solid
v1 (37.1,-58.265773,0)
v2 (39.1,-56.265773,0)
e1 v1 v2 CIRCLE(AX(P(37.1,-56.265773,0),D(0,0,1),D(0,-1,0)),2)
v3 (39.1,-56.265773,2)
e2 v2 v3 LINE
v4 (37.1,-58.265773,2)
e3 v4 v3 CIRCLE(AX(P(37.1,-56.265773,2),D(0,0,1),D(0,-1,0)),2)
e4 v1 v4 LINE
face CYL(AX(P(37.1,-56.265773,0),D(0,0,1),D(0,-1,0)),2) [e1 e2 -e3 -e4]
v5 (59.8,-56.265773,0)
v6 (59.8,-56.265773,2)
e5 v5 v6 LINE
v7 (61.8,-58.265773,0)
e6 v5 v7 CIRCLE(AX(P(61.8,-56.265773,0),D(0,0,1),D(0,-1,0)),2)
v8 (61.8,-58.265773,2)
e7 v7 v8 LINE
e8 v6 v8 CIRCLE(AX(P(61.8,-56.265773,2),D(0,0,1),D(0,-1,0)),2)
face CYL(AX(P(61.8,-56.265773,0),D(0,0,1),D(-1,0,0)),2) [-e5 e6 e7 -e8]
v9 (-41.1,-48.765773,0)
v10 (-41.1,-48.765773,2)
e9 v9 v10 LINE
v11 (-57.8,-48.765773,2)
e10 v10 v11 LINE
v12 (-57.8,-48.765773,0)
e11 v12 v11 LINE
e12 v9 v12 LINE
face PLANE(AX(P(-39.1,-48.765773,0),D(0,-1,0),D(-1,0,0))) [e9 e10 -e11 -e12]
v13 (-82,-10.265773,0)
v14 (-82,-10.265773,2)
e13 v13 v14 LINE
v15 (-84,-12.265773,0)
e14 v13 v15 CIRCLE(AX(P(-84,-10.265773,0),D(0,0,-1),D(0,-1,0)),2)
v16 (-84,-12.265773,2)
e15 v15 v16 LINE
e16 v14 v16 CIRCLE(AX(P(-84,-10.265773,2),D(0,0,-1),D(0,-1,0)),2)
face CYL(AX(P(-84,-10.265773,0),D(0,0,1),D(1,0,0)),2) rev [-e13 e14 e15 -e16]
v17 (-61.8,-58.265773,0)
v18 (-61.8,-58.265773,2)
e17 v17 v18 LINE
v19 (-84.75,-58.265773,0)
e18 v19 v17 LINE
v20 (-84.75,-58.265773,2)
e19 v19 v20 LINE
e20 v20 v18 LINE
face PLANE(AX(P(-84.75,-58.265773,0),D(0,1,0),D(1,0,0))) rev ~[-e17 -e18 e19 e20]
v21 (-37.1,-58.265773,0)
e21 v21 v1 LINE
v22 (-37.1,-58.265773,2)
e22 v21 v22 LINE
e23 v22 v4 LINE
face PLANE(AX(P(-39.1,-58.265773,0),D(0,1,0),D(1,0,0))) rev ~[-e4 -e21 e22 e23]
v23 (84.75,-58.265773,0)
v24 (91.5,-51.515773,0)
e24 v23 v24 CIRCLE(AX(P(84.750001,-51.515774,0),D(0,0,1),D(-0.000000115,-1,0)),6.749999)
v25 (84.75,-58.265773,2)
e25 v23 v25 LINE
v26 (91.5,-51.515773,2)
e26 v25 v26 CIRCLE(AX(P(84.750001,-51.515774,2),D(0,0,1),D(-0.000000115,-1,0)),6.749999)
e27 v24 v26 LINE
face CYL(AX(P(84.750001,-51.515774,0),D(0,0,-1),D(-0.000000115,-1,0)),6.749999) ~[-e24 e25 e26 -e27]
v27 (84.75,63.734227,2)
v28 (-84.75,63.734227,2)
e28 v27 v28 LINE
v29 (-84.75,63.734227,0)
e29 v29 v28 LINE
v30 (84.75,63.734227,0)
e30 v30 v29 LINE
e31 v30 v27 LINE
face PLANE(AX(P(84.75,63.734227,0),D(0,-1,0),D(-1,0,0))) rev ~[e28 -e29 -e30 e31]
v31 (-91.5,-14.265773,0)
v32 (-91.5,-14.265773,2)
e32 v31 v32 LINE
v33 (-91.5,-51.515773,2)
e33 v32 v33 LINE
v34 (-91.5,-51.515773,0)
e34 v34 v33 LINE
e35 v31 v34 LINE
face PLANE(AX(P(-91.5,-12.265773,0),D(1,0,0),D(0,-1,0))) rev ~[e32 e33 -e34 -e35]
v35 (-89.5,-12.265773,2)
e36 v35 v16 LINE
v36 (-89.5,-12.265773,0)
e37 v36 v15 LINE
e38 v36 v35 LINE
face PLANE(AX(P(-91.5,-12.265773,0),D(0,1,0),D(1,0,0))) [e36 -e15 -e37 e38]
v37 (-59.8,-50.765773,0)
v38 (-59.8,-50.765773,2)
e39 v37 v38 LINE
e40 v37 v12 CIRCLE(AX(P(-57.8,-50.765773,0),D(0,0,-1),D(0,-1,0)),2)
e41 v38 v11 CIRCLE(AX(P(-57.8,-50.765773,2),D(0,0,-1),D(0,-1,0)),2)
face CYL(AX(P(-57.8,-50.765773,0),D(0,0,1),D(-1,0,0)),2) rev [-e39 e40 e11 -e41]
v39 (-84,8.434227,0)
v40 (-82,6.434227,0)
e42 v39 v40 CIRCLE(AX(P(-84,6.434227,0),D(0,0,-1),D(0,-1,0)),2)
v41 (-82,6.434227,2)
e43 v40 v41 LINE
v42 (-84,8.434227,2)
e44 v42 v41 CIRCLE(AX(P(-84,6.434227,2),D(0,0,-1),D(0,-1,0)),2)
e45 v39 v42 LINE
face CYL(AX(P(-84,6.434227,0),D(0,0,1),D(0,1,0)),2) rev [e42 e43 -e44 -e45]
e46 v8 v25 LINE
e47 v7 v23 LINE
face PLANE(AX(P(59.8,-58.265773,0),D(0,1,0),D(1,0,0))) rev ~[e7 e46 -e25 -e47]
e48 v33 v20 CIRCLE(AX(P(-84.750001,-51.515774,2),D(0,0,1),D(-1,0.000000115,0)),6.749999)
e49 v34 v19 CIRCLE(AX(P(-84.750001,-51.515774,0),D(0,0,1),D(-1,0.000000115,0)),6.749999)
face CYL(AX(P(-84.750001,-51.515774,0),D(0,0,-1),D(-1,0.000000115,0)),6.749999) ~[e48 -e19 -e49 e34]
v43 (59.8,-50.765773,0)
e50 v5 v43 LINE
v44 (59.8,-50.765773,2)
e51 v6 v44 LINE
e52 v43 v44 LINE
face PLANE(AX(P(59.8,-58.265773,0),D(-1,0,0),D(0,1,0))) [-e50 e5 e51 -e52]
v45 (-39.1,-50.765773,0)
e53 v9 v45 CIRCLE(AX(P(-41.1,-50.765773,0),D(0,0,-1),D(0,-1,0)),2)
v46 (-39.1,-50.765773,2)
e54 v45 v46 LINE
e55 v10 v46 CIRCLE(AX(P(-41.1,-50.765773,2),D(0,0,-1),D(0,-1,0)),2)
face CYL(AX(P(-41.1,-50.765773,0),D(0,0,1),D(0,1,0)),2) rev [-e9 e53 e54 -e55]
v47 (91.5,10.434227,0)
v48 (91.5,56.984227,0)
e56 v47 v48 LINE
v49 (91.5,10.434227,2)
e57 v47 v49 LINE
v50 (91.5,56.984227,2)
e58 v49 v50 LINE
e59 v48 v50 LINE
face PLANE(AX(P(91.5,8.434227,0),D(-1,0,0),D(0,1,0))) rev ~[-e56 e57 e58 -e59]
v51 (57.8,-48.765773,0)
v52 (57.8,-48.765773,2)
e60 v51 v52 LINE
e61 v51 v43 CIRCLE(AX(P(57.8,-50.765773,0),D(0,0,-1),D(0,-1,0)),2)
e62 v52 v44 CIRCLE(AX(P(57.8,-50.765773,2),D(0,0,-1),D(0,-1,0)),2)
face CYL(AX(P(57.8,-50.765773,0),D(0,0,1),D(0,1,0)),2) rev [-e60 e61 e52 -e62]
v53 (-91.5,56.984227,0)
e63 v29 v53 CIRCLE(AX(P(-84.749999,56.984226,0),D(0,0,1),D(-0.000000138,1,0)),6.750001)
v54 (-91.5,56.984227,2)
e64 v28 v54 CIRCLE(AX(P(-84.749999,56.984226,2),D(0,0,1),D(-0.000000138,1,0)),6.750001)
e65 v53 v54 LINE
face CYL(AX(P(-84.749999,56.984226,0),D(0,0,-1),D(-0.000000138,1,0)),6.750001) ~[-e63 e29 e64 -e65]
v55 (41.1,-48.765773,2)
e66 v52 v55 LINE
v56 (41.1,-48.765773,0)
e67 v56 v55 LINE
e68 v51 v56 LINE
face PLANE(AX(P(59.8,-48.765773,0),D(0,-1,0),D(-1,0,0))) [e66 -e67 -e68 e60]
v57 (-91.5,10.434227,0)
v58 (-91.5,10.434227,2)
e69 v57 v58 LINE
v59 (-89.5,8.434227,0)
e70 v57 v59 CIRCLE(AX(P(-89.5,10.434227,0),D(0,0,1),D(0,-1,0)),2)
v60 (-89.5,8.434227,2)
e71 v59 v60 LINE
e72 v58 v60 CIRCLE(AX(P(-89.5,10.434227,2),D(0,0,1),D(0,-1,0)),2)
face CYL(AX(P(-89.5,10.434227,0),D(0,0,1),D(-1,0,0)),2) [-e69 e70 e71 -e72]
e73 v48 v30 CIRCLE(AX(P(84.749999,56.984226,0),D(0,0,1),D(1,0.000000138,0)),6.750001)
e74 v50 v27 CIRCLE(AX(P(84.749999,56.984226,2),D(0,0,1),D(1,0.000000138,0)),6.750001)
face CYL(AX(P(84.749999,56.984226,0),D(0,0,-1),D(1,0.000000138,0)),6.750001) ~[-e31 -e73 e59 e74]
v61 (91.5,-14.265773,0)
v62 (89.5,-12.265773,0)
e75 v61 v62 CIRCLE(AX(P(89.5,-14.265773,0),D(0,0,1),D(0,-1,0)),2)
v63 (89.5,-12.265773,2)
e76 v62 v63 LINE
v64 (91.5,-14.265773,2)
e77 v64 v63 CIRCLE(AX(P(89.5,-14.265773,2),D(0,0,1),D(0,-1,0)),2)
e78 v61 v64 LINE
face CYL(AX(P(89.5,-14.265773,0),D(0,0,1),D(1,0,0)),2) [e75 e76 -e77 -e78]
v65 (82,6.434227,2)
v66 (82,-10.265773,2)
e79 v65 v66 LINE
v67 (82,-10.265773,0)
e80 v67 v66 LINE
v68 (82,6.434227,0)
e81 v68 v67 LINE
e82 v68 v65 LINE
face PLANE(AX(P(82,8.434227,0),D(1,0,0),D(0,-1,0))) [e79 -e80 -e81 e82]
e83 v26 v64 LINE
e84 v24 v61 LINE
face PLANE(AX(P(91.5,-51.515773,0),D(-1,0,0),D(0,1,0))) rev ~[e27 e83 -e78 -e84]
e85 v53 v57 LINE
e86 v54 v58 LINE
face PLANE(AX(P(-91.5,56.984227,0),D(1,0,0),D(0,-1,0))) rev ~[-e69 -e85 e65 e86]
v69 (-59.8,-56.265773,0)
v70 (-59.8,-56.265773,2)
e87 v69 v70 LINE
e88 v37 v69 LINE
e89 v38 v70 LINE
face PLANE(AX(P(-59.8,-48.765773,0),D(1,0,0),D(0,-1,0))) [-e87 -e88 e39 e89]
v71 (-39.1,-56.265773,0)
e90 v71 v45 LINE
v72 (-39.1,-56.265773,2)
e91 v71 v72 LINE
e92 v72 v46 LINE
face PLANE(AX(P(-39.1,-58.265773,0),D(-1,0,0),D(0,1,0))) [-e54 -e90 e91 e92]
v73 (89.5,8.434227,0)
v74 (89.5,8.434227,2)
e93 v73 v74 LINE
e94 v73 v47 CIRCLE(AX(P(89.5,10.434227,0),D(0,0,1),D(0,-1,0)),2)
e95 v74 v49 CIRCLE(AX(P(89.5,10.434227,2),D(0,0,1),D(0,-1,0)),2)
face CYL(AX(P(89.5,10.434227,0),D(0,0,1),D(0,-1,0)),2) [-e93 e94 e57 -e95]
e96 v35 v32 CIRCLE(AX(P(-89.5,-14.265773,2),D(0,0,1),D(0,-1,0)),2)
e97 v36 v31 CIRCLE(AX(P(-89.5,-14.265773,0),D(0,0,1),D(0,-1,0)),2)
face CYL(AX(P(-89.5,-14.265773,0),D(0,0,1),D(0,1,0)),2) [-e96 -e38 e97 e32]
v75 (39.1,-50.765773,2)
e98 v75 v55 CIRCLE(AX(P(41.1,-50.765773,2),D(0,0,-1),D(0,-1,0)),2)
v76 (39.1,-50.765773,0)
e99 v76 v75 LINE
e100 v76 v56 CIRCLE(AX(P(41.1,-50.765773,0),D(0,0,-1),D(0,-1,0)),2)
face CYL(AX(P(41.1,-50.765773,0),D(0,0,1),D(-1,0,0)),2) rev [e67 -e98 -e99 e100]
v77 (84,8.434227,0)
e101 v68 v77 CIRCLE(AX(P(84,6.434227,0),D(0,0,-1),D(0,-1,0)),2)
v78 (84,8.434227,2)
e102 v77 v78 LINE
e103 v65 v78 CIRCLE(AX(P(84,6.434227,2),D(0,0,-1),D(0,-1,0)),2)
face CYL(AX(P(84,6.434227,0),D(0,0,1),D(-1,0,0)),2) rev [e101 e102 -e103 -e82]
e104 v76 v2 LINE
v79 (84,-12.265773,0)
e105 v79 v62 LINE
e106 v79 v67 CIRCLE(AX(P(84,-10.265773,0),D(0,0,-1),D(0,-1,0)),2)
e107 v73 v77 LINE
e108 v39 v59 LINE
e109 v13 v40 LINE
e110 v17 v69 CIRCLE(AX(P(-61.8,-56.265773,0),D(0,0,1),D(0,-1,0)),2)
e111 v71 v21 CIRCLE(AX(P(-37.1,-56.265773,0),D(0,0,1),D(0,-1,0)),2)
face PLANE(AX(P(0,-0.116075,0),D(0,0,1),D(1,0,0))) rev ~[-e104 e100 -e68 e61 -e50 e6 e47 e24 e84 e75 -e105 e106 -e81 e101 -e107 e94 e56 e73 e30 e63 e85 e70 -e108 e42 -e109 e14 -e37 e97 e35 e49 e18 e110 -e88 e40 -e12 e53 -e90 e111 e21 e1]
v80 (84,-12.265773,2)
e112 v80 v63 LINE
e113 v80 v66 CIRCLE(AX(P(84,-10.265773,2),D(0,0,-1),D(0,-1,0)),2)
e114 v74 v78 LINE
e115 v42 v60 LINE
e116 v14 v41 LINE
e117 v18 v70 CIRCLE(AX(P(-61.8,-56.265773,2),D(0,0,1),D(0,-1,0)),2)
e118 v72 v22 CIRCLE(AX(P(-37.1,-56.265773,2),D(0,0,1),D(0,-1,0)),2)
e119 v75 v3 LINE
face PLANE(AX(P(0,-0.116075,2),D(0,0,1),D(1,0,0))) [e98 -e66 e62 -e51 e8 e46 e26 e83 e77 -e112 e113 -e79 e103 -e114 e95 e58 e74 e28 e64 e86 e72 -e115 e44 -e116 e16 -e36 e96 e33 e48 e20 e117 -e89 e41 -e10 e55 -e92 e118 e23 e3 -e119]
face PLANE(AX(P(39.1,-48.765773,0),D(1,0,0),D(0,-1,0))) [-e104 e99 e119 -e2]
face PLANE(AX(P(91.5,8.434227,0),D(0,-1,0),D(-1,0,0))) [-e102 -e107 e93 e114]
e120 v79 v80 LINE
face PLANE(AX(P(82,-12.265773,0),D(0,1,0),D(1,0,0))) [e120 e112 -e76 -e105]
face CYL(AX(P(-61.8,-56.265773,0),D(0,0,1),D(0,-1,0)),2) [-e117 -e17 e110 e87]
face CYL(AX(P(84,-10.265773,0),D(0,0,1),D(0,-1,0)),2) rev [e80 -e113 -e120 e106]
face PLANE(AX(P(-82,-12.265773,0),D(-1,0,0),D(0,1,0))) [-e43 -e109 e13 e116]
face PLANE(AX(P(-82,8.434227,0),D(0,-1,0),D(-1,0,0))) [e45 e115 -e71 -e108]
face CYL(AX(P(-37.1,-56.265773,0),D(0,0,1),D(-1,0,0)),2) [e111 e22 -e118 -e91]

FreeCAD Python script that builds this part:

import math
import FreeCAD as App
import Part
import Sketcher

V = App.Vector


def edges_at(feature, points):
    """Names of the edges that pass closest to the given points."""
    edges = feature.Shape.Edges
    near = lambda p: min(range(len(edges)), key=lambda i: edges[i].distToShape(Part.Vertex(*p))[0])
    return sorted({f"Edge{near(p) + 1}" for p in points})

doc = App.newDocument("Part")
params = doc.addObject("Spreadsheet::Sheet", "Params")
for row, (alias, value) in enumerate([
    ("sketch1_radius", "6.749999 mm"),
    ("sketch1_width", "9.5 mm"),
    ("sketch1_width2", "20.7 mm"),
    ("sketch1_width3", "78.2 mm"),
    ("sketch1_width4", "169.5 mm"),
    ("pad1_length", "2 mm"),
    ("fillet_radius", "2 mm"),
], start=1):
    params.set(f"A{row}", alias)
    params.set(f"B{row}", "=" + value)
    params.setAlias(f"B{row}", alias)

body = doc.addObject("PartDesign::Body", "Body")

# Sketch on XY plane
sketch1 = body.newObject("Sketcher::SketchObject", "Sketch")
sketch1.AttachmentSupport = (doc.getObject("XY_Plane"), [""])
sketch1.MapMode = "FlatFace"
sketch1.addGeometry(Part.LineSegment(V(-92, 57, 0), V(-92, 8, 0)), False)
sketch1.addGeometry(Part.LineSegment(V(-92, 8, 0), V(-82, 8, 0)), False)
sketch1.addGeometry(Part.LineSegment(V(-82, 8, 0), V(-82, -12, 0)), False)
sketch1.addGeometry(Part.LineSegment(V(-82, -12, 0), V(-92, -12, 0)), False)
sketch1.addGeometry(Part.LineSegment(V(-92, -12, 0), V(-92, -52, 0)), False)
sketch1.addGeometry(Part.ArcOfCircle(Part.Circle(V(-85, -52, 0), V(0, 0, 1), 7), math.radians(180), math.radians(270)), False)
sketch1.addGeometry(Part.LineSegment(V(-85, -58, 0), V(-60, -58, 0)), False)
sketch1.addGeometry(Part.LineSegment(V(-60, -58, 0), V(-60, -49, 0)), False)
sketch1.addGeometry(Part.LineSegment(V(-60, -49, 0), V(-39, -49, 0)), False)
sketch1.addGeometry(Part.LineSegment(V(-39, -49, 0), V(-39, -58, 0)), False)
sketch1.addGeometry(Part.LineSegment(V(-39, -58, 0), V(39, -58, 0)), False)
sketch1.addGeometry(Part.LineSegment(V(39, -58, 0), V(39, -49, 0)), False)
sketch1.addGeometry(Part.LineSegment(V(39, -49, 0), V(60, -49, 0)), False)
sketch1.addGeometry(Part.LineSegment(V(60, -49, 0), V(60, -58, 0)), False)
sketch1.addGeometry(Part.LineSegment(V(60, -58, 0), V(85, -58, 0)), False)
sketch1.addGeometry(Part.ArcOfCircle(Part.Circle(V(85, -52, 0), V(0, 0, 1), 7), math.radians(-90), math.radians(0)), False)
sketch1.addGeometry(Part.LineSegment(V(92, -52, 0), V(92, -12, 0)), False)
sketch1.addGeometry(Part.LineSegment(V(92, -12, 0), V(82, -12, 0)), False)
sketch1.addGeometry(Part.LineSegment(V(82, -12, 0), V(82, 8, 0)), False)
sketch1.addGeometry(Part.LineSegment(V(82, 8, 0), V(92, 8, 0)), False)
sketch1.addGeometry(Part.LineSegment(V(92, 8, 0), V(92, 57, 0)), False)
sketch1.addGeometry(Part.ArcOfCircle(Part.Circle(V(85, 57, 0), V(0, 0, 1), 7), math.radians(0), math.radians(90)), False)
sketch1.addGeometry(Part.LineSegment(V(85, 64, 0), V(-85, 64, 0)), False)
sketch1.addGeometry(Part.ArcOfCircle(Part.Circle(V(-85, 57, 0), V(0, 0, 1), 7), math.radians(90), math.radians(180)), False)
sketch1.addConstraint(Sketcher.Constraint("Coincident", 0, 2, 1, 1))
sketch1.addConstraint(Sketcher.Constraint("Coincident", 1, 2, 2, 1))
sketch1.addConstraint(Sketcher.Constraint("Coincident", 2, 2, 3, 1))
sketch1.addConstraint(Sketcher.Constraint("Coincident", 3, 2, 4, 1))
sketch1.addConstraint(Sketcher.Constraint("Tangent", 4, 2, 5, 1))
sketch1.addConstraint(Sketcher.Constraint("Tangent", 5, 2, 6, 1))
sketch1.addConstraint(Sketcher.Constraint("Coincident", 6, 2, 7, 1))
sketch1.addConstraint(Sketcher.Constraint("Coincident", 7, 2, 8, 1))
sketch1.addConstraint(Sketcher.Constraint("Coincident", 8, 2, 9, 1))
sketch1.addConstraint(Sketcher.Constraint("Coincident", 9, 2, 10, 1))
sketch1.addConstraint(Sketcher.Constraint("Coincident", 10, 2, 11, 1))
sketch1.addConstraint(Sketcher.Constraint("Coincident", 11, 2, 12, 1))
sketch1.addConstraint(Sketcher.Constraint("Coincident", 12, 2, 13, 1))
sketch1.addConstraint(Sketcher.Constraint("Coincident", 13, 2, 14, 1))
sketch1.addConstraint(Sketcher.Constraint("Tangent", 14, 2, 15, 1))
sketch1.addConstraint(Sketcher.Constraint("Tangent", 15, 2, 16, 1))
sketch1.addConstraint(Sketcher.Constraint("Coincident", 16, 2, 17, 1))
sketch1.addConstraint(Sketcher.Constraint("Coincident", 17, 2, 18, 1))
sketch1.addConstraint(Sketcher.Constraint("Coincident", 18, 2, 19, 1))
sketch1.addConstraint(Sketcher.Constraint("Coincident", 19, 2, 20, 1))
sketch1.addConstraint(Sketcher.Constraint("Tangent", 20, 2, 21, 1))
sketch1.addConstraint(Sketcher.Constraint("Tangent", 21, 2, 22, 1))
sketch1.addConstraint(Sketcher.Constraint("Tangent", 22, 2, 23, 1))
sketch1.addConstraint(Sketcher.Constraint("Tangent", 23, 2, 0, 1))
sketch1.addConstraint(Sketcher.Constraint("Vertical", 0))
sketch1.addConstraint(Sketcher.Constraint("Horizontal", 1))
sketch1.addConstraint(Sketcher.Constraint("Vertical", 2))
sketch1.addConstraint(Sketcher.Constraint("Horizontal", 3))
sketch1.addConstraint(Sketcher.Constraint("Vertical", 4))
sketch1.addConstraint(Sketcher.Constraint("Horizontal", 6))
sketch1.addConstraint(Sketcher.Constraint("Vertical", 7))
sketch1.addConstraint(Sketcher.Constraint("Horizontal", 8))
sketch1.addConstraint(Sketcher.Constraint("Vertical", 9))
sketch1.addConstraint(Sketcher.Constraint("Horizontal", 10))
sketch1.addConstraint(Sketcher.Constraint("Vertical", 11))
sketch1.addConstraint(Sketcher.Constraint("Horizontal", 12))
sketch1.addConstraint(Sketcher.Constraint("Vertical", 13))
sketch1.addConstraint(Sketcher.Constraint("Horizontal", 14))
sketch1.addConstraint(Sketcher.Constraint("Vertical", 16))
sketch1.addConstraint(Sketcher.Constraint("Horizontal", 17))
sketch1.addConstraint(Sketcher.Constraint("Vertical", 18))
sketch1.addConstraint(Sketcher.Constraint("Horizontal", 19))
sketch1.addConstraint(Sketcher.Constraint("Vertical", 20))
sketch1.addConstraint(Sketcher.Constraint("Horizontal", 22))
sketch1.addConstraint(Sketcher.Constraint("Equal", 5, 15))
sketch1.addConstraint(Sketcher.Constraint("Equal", 15, 21))
sketch1.addConstraint(Sketcher.Constraint("Equal", 21, 23))
sketch1.addConstraint(Sketcher.Constraint("Symmetric", 5, 3, 15, 3, -2))
sketch1.addConstraint(Sketcher.Constraint("Symmetric", 8, 2, 11, 2, -2))
sketch1.addConstraint(Sketcher.Constraint("Symmetric", 2, 2, 17, 2, -2))
sketch1.addConstraint(Sketcher.Constraint("Symmetric", 0, 2, 19, 2, -2))
sketch1.addConstraint(Sketcher.Constraint("Horizontal", 6, 2, 9, 2))
sketch1.addConstraint(Sketcher.Constraint("Vertical", 15, 3, 21, 3))
sketch1.addConstraint(Sketcher.Constraint("Equal", 8, 12))
sketch1.addConstraint(Sketcher.Constraint("Equal", 12, 2))
sketch1.addConstraint(Sketcher.Constraint("Equal", 19, 7))
sketch1.addConstraint(Sketcher.Constraint("Radius", 5, 6.749999))
sketch1.addConstraint(Sketcher.Constraint("DistanceX", 1, 1, 1, 2, 9.5))
sketch1.addConstraint(Sketcher.Constraint("DistanceX", 8, 1, 8, 2, 20.7))
sketch1.addConstraint(Sketcher.Constraint("DistanceX", 10, 1, 10, 2, 78.2))
sketch1.addConstraint(Sketcher.Constraint("DistanceX", 22, 2, 22, 1, 169.5))
sketch1.addConstraint(Sketcher.Constraint("DistanceY", 5, 2, 2, 2, 46.0))
sketch1.addConstraint(Sketcher.Constraint("DistanceY", 17, 2, 21, 2, 76.0))
sketch1.addConstraint(Sketcher.Constraint("DistanceY", 5, 3, -1, 1, 51.515774))
sketch1.setExpression("Constraints[56]", "Params.sketch1_radius")
sketch1.setExpression("Constraints[57]", "Params.sketch1_width")
sketch1.setExpression("Constraints[58]", "Params.sketch1_width2")
sketch1.setExpression("Constraints[59]", "Params.sketch1_width3")
sketch1.setExpression("Constraints[60]", "Params.sketch1_width4")
pad1 = body.newObject("PartDesign::Pad", "Pad")
pad1.Profile = sketch1
pad1.setExpression("Length", "Params.pad1_length")
doc.recompute()

fillet = body.newObject("PartDesign::Fillet", "Fillet")
fillet.Base = (pad1, edges_at(pad1, [
    (-82, 8.434, 1),
    (-91.5, 8.434, 1),
    (-82, -12.266, 1),
    (-91.5, -12.266, 1),
    (-39.1, -48.766, 1),
    (-59.8, -48.766, 1),
    (39.1, -48.766, 1),
    (-59.8, -58.266, 1),
    (-39.1, -58.266, 1),
    (39.1, -58.266, 1),
    (59.8, -48.766, 1),
    (59.8, -58.266, 1),
    (82, 8.434, 1),
    (91.5, 8.434, 1),
    (91.5, -12.266, 1),
    (82, -12.266, 1),
]))
fillet.setExpression("Radius", "Params.fillet_radius")

doc.recompute()
